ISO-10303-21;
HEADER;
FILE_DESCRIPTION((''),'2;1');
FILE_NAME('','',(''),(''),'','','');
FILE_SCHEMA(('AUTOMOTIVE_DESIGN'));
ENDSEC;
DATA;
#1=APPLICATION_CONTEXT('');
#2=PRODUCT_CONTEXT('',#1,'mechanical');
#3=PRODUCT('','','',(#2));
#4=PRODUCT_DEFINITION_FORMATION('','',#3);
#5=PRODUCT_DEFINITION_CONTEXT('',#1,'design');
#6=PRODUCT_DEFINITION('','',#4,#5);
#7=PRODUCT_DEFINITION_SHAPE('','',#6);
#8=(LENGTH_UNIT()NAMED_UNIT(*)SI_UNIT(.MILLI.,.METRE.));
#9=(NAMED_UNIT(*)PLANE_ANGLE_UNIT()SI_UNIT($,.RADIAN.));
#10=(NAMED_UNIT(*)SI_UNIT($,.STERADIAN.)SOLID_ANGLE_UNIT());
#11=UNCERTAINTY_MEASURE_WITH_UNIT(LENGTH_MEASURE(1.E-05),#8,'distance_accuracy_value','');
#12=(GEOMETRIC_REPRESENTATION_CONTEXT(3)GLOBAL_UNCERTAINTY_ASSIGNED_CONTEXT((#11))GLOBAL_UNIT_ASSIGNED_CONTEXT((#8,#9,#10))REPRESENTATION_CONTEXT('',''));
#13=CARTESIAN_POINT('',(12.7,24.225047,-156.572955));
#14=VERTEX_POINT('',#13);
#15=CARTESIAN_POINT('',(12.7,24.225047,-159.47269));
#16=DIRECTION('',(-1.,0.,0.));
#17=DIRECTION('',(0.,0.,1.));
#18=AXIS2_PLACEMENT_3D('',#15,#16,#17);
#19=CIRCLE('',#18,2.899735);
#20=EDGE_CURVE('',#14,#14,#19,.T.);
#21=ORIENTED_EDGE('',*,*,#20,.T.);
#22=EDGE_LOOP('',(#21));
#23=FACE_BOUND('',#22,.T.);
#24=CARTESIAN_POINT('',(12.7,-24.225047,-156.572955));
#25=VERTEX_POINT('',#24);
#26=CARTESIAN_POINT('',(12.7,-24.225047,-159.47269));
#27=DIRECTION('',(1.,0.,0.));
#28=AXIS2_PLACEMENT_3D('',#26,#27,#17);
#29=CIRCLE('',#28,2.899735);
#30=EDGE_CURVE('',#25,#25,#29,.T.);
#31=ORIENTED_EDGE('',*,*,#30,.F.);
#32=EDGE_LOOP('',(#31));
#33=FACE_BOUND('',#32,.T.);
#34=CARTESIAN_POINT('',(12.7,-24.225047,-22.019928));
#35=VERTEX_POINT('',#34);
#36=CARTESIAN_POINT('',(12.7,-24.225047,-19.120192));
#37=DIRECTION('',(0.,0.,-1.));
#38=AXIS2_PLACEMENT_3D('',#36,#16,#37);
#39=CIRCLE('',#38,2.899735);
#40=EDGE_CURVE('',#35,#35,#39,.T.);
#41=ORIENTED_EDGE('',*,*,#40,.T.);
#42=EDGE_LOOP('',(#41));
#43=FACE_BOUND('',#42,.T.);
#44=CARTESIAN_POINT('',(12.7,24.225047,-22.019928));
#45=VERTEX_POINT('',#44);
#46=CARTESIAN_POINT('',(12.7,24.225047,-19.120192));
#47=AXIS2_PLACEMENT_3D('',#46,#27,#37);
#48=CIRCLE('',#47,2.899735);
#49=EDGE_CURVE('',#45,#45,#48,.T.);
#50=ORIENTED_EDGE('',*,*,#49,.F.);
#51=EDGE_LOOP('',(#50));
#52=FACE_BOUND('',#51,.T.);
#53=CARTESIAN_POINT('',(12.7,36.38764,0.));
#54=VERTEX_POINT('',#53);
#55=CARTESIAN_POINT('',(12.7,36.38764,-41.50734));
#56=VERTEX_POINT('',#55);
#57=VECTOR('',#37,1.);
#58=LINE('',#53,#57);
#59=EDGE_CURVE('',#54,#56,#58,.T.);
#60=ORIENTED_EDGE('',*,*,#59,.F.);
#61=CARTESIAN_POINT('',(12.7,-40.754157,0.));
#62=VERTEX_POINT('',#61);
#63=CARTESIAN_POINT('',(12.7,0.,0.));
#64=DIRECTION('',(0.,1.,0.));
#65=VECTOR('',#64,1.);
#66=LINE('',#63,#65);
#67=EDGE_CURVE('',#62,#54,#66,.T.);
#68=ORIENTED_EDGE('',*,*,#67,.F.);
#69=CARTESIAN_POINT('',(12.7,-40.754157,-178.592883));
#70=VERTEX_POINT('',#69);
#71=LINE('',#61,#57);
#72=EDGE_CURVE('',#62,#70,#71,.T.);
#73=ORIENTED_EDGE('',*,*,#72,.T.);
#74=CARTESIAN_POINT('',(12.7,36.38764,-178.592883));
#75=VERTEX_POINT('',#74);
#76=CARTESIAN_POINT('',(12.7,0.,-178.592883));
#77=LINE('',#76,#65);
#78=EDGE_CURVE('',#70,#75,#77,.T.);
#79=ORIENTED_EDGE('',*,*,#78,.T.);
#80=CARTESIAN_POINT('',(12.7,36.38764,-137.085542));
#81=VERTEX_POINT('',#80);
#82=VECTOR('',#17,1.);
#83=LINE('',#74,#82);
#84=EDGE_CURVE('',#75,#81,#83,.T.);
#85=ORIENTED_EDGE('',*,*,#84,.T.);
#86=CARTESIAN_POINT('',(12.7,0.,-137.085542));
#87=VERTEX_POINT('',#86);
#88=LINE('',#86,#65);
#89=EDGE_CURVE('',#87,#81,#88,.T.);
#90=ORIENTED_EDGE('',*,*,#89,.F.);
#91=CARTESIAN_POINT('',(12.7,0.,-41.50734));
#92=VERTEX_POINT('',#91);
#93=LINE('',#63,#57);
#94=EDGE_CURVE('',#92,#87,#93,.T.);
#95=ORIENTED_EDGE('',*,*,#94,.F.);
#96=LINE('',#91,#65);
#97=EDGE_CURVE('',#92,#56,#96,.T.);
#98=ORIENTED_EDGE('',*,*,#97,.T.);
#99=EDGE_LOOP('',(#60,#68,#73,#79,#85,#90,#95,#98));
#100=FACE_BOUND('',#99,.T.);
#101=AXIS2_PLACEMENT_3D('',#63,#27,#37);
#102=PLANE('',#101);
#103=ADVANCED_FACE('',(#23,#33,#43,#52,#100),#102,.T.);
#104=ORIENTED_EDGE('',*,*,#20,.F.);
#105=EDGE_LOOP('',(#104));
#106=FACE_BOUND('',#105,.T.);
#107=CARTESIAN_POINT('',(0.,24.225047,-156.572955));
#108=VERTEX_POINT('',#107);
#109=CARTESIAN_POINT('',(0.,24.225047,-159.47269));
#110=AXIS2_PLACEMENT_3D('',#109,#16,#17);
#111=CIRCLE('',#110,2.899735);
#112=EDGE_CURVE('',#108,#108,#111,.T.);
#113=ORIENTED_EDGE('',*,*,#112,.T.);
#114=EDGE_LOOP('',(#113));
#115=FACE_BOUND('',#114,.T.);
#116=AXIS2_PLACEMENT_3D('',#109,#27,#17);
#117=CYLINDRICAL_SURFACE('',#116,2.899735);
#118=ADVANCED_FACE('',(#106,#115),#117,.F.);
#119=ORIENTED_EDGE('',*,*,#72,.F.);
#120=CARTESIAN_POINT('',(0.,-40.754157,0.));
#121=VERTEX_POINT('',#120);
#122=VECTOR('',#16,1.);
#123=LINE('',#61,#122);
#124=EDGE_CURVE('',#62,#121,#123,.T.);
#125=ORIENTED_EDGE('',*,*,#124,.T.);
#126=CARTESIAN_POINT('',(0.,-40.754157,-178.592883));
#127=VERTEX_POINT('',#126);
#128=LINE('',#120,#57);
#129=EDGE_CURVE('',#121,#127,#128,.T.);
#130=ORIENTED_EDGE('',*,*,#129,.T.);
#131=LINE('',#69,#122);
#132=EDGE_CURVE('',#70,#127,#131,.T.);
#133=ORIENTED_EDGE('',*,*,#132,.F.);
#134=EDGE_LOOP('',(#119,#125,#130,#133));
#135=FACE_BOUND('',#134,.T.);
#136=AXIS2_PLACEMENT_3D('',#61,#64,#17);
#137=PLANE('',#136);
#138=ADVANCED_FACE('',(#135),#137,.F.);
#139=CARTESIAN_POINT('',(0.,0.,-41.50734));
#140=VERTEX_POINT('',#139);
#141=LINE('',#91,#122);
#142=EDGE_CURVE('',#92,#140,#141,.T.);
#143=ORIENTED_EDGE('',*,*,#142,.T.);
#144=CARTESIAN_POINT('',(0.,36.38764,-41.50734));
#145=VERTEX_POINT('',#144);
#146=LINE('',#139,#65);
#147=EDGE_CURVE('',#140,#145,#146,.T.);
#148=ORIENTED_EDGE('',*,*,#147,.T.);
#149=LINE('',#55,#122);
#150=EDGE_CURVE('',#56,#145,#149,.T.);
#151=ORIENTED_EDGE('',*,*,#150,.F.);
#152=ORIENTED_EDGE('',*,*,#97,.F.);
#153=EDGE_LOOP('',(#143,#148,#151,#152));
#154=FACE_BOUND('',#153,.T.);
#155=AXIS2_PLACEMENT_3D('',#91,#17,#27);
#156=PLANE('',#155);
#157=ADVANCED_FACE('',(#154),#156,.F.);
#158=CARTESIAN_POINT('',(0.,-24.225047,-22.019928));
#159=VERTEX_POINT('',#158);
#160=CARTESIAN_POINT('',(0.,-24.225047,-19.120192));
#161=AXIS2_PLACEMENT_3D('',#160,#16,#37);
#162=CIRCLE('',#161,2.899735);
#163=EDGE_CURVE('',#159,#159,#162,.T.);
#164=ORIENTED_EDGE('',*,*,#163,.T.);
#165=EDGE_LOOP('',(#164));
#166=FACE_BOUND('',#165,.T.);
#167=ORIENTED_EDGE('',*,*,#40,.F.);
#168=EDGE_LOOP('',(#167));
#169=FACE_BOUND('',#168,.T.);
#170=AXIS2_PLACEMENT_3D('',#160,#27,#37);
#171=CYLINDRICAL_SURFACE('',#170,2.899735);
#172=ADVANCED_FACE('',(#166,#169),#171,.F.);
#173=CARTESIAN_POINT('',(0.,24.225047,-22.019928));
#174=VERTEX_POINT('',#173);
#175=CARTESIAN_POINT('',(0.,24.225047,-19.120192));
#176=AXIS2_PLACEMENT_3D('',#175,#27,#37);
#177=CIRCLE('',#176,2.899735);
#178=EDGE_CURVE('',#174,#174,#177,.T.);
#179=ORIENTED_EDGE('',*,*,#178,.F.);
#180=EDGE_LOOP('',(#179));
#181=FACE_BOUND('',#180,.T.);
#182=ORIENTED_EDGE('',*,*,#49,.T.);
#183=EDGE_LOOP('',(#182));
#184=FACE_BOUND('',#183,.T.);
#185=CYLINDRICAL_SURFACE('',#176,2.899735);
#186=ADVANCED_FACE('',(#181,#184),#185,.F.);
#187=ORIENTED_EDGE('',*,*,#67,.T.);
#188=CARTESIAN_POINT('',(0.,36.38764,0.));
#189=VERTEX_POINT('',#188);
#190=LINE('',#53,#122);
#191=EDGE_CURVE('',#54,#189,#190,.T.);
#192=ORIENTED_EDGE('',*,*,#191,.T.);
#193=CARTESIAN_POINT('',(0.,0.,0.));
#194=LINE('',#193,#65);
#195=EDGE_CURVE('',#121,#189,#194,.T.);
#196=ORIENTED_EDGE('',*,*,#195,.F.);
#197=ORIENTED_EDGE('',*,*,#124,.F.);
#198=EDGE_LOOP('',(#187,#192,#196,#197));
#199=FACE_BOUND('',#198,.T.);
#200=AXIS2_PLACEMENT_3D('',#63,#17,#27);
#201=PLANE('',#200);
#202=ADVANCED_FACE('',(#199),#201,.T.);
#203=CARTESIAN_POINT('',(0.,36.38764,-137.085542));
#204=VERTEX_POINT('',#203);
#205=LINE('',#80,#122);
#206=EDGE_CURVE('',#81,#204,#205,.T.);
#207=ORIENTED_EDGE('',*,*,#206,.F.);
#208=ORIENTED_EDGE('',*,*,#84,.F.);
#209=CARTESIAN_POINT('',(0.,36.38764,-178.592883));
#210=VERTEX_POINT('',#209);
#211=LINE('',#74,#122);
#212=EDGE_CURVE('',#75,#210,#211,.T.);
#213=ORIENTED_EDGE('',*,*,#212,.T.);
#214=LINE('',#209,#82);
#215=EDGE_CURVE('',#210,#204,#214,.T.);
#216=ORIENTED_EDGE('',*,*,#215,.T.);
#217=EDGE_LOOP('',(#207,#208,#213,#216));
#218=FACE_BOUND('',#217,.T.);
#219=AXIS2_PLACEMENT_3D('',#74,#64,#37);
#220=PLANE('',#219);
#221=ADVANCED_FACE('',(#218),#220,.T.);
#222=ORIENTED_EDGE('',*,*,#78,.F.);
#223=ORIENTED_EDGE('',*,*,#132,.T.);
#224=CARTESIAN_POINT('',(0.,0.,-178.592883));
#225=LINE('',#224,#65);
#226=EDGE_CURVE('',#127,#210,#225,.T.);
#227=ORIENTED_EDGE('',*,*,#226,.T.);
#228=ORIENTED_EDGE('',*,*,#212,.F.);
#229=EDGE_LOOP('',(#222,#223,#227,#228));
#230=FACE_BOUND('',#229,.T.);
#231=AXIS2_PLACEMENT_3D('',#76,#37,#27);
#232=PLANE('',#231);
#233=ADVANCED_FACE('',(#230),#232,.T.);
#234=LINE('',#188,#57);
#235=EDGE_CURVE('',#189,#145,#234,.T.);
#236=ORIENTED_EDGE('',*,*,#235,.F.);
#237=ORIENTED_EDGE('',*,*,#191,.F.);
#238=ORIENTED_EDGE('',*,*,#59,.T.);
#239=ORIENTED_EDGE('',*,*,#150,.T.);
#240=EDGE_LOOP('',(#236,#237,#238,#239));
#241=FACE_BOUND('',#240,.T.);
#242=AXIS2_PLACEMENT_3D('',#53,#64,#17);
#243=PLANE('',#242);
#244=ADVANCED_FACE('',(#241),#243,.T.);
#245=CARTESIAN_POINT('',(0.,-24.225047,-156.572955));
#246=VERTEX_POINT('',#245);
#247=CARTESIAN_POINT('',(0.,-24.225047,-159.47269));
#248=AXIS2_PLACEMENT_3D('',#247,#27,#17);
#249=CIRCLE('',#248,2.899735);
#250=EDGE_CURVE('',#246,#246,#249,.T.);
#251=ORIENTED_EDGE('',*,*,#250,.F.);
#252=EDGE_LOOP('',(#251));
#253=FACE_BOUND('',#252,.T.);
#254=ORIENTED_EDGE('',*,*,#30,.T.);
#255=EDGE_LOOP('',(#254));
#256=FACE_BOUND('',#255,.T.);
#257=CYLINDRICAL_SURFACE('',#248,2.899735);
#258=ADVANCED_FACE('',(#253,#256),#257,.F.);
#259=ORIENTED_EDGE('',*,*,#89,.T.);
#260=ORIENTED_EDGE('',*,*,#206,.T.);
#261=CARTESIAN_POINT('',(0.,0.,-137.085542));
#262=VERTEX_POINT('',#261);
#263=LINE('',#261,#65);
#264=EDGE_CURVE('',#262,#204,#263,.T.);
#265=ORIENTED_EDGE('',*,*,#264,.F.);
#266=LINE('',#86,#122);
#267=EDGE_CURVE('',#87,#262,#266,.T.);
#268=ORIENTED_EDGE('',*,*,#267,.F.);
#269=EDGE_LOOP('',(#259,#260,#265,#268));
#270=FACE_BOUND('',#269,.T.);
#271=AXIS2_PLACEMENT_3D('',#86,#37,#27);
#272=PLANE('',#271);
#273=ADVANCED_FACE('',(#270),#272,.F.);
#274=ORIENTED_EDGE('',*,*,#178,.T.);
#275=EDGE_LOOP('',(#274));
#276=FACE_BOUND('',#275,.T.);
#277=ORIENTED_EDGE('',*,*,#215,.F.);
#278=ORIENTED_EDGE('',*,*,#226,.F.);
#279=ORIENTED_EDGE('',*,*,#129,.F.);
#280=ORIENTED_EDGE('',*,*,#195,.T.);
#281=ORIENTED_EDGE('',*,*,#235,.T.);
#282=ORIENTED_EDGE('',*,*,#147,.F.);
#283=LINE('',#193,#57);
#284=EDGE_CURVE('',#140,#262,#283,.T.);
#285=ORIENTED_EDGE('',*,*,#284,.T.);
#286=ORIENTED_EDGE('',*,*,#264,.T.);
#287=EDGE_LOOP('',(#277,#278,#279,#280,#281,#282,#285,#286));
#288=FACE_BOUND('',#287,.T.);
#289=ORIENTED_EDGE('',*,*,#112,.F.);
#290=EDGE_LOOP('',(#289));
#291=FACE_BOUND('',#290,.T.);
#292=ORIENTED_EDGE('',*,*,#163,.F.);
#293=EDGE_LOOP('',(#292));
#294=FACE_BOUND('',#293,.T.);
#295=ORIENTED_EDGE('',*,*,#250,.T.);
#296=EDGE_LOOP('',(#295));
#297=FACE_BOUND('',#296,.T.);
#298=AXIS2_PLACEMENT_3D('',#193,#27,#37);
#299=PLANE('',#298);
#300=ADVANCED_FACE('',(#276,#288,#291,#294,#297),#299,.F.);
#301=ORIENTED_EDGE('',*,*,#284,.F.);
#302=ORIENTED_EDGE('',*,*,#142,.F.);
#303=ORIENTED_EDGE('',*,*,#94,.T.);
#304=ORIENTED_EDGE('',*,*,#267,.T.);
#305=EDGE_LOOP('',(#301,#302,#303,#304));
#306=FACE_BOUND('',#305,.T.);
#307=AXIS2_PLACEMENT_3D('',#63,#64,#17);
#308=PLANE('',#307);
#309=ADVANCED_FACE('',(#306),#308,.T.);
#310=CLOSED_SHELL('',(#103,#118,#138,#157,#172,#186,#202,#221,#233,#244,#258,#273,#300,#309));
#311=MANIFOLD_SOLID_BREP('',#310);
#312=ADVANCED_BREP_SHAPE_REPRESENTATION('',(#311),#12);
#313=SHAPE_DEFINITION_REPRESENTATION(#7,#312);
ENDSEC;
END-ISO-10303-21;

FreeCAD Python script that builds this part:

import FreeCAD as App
import Part
import Sketcher
from FreeCAD import Vector
Q = App.Units.Quantity


def add_polygon(sketch, points):
    """Adds a closed chain of lines whose ends are joined by coincident constraints."""
    first, n = sketch.GeometryCount, len(points)
    for a, b in zip(points, points[1:] + points[:1]):
        sketch.addGeometry(Part.LineSegment(App.Vector(*a, 0), App.Vector(*b, 0)), False)
    for i in range(n):
        sketch.addConstraint(Sketcher.Constraint("Coincident", first + i, 2, first + (i + 1) % n, 1))

doc = App.newDocument("Part")
body = doc.addObject("PartDesign::Body", "Body")

# Sketch on YZ plane
sketch1 = body.newObject("Sketcher::SketchObject", "Sketch")
sketch1.AttachmentSupport = (doc.getObject("YZ_Plane"), [""])
sketch1.MapMode = "FlatFace"
add_polygon(sketch1, [(36, 0), (-41, 0), (-41, -89), (0, -89), (0, -42), (36, -42)])  # lines 0-5
sketch1.addConstraint([
    Sketcher.Constraint("Horizontal", 0),
    Sketcher.Constraint("Vertical", 1),
    Sketcher.Constraint("Horizontal", 2),
    Sketcher.Constraint("Vertical", 3),
    Sketcher.Constraint("Horizontal", 4),
    Sketcher.Constraint("Vertical", 5),
    Sketcher.Constraint("PointOnObject", 0, 2, -1),
    Sketcher.Constraint("PointOnObject", 2, 2, -2),
    Sketcher.Constraint("DistanceY", 3, 1, 3, 2, Q("47.789101 mm")),
    Sketcher.Constraint("DistanceX", 4, 1, 4, 2, Q("36.38764 mm")),
    Sketcher.Constraint("DistanceY", 1, 2, 1, 1, Q("89.296441 mm")),
    Sketcher.Constraint("DistanceX", 0, 2, 0, 1, Q("77.141798 mm")),
])
pad1 = body.newObject("PartDesign::Pad", "Pad")
pad1.Profile = sketch1
pad1.Length = Q("0.5 in")

# Sketch on YZ plane
sketch2 = body.newObject("Sketcher::SketchObject", "Sketch001")
sketch2.AttachmentSupport = (doc.getObject("YZ_Plane"), [""])
sketch2.MapMode = "FlatFace"
sketch2.AttachmentOffset = App.Placement(Vector(0, 0, 0.5 * 25.4), App.Rotation())
sketch2.addGeometry(Part.Circle(Vector(24.2, -19.1, 0), Vector(0, 0, 1), 2.9), False)
sketch2.addConstraint([
    Sketcher.Constraint("Diameter", 0, Q("5.799471 mm")),
    Sketcher.Constraint("DistanceX", -1, 1, 0, 3, Q("24.225047 mm")),
    Sketcher.Constraint("DistanceY", 0, 3, -1, 1, Q("19.120192 mm")),
])
pocket1 = body.newObject("PartDesign::Pocket", "Pocket")
pocket1.Profile = sketch2
pocket1.Type = "ThroughAll"
doc.recompute()

mirrored = body.newObject("PartDesign::Mirrored", "Mirrored")
mirrored.Originals = [pocket1]
mirrored.MirrorPlane = (doc.getObject("XZ_Plane"), [""])
body.Tip = mirrored
body2 = doc.addObject("PartDesign::Body", "Body001")
doc.recompute()

body2.BaseFeature = body
doc.recompute()

mirroring = doc.addObject("Part::Mirroring", "Mirroring")
mirroring.Source = body
mirroring.Base = Vector(12.7, 0, -89.296441)
mirroring.Normal = Vector(0, 0, -1)
body3 = doc.addObject("PartDesign::Body", "Body002")
body3.BaseFeature = mirroring
boolean = body2.newObject("PartDesign::Boolean", "Boolean")
boolean.Type = "Fuse"
boolean.addObjects([body3])
doc.recompute()
mirroring.Visibility = False

doc.recompute()
